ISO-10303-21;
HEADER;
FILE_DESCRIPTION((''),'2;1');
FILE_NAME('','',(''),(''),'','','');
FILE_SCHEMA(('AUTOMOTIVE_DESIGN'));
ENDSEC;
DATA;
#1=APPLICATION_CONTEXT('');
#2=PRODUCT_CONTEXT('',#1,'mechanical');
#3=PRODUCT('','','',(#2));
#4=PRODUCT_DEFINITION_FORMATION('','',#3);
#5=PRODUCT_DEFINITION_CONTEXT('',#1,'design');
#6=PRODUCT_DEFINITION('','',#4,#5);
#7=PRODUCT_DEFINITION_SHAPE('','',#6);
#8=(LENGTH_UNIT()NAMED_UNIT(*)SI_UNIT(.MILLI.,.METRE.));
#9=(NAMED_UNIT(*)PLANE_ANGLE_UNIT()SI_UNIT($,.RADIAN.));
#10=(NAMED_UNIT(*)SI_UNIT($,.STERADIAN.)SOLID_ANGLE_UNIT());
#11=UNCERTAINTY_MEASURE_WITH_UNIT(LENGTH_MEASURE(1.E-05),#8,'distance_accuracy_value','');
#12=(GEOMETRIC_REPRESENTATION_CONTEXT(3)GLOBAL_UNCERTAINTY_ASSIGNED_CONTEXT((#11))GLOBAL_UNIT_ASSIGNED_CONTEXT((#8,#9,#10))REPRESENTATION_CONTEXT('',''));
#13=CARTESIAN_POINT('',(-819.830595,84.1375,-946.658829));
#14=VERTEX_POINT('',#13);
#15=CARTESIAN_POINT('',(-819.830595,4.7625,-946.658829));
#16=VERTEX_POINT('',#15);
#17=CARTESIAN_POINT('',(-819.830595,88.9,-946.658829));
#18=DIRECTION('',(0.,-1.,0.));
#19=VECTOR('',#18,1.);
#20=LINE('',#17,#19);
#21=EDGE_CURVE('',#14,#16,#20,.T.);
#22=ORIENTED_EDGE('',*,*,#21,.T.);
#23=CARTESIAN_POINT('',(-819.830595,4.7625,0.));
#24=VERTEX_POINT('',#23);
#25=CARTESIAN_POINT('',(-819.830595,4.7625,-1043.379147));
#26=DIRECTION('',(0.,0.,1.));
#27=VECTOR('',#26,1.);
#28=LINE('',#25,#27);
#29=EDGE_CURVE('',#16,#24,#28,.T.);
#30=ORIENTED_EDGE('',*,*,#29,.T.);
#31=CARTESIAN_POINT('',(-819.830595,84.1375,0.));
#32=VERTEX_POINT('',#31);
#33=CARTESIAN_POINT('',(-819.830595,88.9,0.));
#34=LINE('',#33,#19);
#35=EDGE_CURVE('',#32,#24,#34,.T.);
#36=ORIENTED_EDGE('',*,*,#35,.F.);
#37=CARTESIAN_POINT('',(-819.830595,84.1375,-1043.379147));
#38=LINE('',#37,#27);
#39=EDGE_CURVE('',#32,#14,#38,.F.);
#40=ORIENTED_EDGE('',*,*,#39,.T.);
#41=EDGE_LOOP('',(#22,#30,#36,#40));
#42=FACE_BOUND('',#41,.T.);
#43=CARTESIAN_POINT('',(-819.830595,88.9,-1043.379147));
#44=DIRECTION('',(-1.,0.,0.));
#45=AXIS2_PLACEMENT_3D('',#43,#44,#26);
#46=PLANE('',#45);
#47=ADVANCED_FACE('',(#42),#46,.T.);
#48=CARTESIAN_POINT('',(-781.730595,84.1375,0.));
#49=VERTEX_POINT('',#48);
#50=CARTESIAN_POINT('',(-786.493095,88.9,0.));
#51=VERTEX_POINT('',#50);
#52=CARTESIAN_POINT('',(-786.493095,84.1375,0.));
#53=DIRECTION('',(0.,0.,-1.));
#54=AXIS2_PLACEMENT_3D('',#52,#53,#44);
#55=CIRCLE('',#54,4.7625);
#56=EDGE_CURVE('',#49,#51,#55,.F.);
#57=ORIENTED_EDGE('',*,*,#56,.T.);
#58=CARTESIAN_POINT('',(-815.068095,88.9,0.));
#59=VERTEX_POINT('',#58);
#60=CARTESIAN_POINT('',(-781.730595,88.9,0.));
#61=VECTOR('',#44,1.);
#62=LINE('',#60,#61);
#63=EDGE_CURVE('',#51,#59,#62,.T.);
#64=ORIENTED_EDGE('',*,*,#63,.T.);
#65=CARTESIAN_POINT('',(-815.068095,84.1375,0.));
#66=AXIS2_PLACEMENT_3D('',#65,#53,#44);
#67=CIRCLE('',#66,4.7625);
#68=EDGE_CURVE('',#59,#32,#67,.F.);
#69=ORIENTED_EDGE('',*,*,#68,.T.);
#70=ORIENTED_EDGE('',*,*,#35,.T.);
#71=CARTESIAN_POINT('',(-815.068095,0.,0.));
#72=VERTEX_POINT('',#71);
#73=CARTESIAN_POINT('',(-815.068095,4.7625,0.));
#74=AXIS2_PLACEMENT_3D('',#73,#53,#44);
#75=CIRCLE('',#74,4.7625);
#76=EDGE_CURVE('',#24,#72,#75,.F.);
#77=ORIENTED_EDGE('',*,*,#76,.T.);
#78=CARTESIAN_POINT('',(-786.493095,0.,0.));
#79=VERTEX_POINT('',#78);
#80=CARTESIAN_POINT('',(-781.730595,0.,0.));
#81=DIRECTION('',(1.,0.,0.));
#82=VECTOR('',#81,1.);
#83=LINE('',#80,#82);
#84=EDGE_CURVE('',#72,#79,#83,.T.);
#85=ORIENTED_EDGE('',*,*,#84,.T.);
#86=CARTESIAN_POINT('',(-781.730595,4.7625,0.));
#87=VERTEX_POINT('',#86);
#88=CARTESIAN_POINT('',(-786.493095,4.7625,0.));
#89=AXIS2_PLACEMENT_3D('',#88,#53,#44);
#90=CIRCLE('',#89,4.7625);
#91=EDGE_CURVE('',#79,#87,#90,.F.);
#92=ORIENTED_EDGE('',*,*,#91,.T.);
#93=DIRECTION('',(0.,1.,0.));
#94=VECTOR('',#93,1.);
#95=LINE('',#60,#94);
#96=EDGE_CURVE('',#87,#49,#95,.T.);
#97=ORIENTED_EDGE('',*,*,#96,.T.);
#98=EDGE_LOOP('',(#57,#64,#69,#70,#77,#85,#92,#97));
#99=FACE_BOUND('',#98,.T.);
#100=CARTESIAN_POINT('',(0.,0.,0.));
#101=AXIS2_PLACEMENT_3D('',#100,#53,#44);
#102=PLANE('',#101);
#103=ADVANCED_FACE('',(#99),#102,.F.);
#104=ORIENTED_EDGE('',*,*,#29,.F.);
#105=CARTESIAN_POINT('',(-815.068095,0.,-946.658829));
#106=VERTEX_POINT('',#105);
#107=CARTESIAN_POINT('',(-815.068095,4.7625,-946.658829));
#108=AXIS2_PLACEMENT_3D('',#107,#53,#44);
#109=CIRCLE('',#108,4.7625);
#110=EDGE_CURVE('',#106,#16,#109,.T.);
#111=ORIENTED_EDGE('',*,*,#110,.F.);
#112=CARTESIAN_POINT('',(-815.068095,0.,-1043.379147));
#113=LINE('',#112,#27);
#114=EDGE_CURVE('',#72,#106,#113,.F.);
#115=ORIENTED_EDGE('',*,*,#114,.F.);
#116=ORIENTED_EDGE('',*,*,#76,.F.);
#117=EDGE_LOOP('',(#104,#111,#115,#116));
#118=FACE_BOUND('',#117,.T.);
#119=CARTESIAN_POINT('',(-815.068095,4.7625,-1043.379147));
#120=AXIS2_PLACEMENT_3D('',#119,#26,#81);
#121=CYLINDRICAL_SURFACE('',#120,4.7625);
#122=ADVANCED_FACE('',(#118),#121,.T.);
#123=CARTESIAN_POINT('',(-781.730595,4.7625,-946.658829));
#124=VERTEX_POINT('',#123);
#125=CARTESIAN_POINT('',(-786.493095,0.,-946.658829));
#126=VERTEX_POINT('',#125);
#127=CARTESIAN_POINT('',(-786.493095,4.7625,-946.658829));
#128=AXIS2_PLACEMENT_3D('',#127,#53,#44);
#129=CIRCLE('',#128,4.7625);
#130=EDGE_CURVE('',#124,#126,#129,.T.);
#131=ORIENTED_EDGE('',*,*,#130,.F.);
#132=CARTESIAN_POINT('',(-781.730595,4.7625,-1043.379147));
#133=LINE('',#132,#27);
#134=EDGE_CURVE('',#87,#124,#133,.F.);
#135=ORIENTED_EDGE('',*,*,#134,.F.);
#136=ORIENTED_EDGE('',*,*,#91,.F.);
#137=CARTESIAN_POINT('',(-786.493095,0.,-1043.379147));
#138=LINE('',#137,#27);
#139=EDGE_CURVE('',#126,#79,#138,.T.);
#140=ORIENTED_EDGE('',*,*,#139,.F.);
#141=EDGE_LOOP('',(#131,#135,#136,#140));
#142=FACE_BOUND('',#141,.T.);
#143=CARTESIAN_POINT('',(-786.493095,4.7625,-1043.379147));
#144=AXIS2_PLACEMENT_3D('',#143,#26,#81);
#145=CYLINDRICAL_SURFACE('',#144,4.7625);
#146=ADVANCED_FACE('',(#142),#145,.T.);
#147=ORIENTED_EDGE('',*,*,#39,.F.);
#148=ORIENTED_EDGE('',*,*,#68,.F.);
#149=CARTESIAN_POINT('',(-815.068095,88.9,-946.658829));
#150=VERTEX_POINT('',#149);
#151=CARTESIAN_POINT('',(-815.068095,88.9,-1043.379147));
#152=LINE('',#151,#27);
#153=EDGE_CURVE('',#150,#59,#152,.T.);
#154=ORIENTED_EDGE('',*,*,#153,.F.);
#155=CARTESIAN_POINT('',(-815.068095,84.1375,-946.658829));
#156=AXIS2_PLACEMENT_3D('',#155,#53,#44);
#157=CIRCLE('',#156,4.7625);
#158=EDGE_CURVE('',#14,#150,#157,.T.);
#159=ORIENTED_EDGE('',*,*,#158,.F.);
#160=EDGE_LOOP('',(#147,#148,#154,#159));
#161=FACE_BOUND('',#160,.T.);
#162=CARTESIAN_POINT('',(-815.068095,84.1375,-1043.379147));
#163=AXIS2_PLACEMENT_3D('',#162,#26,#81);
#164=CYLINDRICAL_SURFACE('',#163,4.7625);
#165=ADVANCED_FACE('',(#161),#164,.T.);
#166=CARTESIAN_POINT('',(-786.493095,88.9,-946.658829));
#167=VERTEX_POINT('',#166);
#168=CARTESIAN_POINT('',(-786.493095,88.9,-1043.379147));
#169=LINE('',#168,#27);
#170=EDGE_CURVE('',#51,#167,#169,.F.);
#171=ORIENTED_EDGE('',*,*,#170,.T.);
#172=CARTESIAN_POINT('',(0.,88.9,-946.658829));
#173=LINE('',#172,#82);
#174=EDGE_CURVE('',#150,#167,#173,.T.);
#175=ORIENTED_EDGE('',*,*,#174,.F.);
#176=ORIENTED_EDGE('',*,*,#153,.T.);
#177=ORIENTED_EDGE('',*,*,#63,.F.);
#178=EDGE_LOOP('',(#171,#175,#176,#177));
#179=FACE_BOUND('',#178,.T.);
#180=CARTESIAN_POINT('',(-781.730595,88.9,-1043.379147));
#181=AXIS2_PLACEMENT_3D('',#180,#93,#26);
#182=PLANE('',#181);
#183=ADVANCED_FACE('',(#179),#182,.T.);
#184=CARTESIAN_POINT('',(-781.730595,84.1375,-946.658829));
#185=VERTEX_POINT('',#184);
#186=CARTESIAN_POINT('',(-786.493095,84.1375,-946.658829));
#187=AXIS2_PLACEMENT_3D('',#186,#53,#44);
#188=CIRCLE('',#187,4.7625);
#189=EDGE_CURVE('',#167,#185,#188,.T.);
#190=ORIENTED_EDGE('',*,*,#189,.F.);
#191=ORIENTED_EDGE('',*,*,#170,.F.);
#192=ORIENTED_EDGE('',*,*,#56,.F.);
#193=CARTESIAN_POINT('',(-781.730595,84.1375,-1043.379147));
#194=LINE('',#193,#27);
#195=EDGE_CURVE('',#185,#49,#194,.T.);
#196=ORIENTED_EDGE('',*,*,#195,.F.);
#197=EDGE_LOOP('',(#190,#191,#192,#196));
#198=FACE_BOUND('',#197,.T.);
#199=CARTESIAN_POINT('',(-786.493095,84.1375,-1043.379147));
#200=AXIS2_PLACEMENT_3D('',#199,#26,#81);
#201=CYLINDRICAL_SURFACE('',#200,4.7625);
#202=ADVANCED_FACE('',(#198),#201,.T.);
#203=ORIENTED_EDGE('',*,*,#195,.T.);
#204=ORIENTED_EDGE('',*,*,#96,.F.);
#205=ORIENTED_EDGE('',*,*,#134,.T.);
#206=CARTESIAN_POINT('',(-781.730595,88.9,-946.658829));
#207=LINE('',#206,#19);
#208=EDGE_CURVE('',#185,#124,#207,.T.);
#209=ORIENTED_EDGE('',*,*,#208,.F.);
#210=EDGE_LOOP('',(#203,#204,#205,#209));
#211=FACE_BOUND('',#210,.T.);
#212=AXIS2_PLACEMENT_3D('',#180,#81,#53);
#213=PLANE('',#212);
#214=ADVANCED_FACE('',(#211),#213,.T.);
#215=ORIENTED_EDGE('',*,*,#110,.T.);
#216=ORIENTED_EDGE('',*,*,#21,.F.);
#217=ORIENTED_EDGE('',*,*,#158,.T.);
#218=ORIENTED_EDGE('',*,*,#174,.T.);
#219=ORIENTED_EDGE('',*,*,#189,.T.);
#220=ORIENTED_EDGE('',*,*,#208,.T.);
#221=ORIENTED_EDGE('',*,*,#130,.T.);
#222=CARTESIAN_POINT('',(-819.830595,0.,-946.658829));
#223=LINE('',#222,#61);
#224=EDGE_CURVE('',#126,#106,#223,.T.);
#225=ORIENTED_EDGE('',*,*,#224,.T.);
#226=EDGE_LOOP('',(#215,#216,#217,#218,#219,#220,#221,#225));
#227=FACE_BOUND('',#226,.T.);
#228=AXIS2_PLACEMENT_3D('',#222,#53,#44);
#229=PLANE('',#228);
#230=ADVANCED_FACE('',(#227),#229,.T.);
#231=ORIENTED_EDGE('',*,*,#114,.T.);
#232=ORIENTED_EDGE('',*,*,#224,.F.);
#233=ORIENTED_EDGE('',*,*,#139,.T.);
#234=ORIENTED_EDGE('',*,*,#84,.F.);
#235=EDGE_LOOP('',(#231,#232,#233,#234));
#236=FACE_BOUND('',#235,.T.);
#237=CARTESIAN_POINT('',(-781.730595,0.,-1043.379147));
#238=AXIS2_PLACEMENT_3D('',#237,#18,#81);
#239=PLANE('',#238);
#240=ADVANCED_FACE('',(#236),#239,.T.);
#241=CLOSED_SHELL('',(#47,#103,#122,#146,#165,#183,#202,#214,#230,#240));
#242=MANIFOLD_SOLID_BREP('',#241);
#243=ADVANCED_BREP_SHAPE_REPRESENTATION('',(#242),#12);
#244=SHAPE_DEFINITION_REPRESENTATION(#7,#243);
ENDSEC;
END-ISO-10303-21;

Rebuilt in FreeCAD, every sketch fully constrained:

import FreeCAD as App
import Part
import Sketcher
from FreeCAD import Vector
Q = App.Units.Quantity


def edges_at(feature, points):
    """Names of the edges that pass closest to the given points."""
    edges = feature.Shape.Edges
    near = lambda p: min(range(len(edges)), key=lambda i: edges[i].distToShape(Part.Vertex(*p))[0])
    return sorted({f"Edge{near(p) + 1}" for p in points})


def add_polygon(sketch, points):
    """Adds a closed chain of lines whose ends are joined by coincident constraints."""
    first, n = sketch.GeometryCount, len(points)
    for a, b in zip(points, points[1:] + points[:1]):
        sketch.addGeometry(Part.LineSegment(App.Vector(*a, 0), App.Vector(*b, 0)), False)
    for i in range(n):
        sketch.addConstraint(Sketcher.Constraint("Coincident", first + i, 2, first + (i + 1) % n, 1))

doc = App.newDocument("Part")
body = doc.addObject("PartDesign::Body", "Body")

# Sketch on XY plane
sketch1 = body.newObject("Sketcher::SketchObject", "Sketch")
sketch1.AttachmentSupport = (doc.getObject("XY_Plane"), [""])
sketch1.MapMode = "FlatFace"
add_polygon(sketch1, [(-820, 89), (-820, 0), (-782, 0), (-782, 89)])  # lines 0-3
sketch1.addConstraint([
    Sketcher.Constraint("Vertical", 0),
    Sketcher.Constraint("Horizontal", 1),
    Sketcher.Constraint("Vertical", 2),
    Sketcher.Constraint("Horizontal", 3),
    Sketcher.Constraint("PointOnObject", 0, 2, -1),
    Sketcher.Constraint("DistanceX", 1, 1, 1, 2, Q("1.5 in")),
    Sketcher.Constraint("DistanceY", 0, 2, 0, 1, Q("3.5 in")),
    Sketcher.Constraint("DistanceX", 0, 2, -1, 1, Q("819.830595 mm")),
])
pad1 = body.newObject("PartDesign::Pad", "Pad")
pad1.Profile = sketch1
pad1.Length = 946.658829
pad1.Reversed = True
doc.recompute()

fillet = body.newObject("PartDesign::Fillet", "Fillet")
fillet.Base = (pad1, edges_at(pad1, [
    (-781.731, 88.9, -473.329),
    (-819.831, 88.9, -473.329),
    (-819.831, 0, -473.329),
    (-781.731, 0, -473.329),
]))
fillet.Radius = Q("0.1875 in")

doc.recompute()
